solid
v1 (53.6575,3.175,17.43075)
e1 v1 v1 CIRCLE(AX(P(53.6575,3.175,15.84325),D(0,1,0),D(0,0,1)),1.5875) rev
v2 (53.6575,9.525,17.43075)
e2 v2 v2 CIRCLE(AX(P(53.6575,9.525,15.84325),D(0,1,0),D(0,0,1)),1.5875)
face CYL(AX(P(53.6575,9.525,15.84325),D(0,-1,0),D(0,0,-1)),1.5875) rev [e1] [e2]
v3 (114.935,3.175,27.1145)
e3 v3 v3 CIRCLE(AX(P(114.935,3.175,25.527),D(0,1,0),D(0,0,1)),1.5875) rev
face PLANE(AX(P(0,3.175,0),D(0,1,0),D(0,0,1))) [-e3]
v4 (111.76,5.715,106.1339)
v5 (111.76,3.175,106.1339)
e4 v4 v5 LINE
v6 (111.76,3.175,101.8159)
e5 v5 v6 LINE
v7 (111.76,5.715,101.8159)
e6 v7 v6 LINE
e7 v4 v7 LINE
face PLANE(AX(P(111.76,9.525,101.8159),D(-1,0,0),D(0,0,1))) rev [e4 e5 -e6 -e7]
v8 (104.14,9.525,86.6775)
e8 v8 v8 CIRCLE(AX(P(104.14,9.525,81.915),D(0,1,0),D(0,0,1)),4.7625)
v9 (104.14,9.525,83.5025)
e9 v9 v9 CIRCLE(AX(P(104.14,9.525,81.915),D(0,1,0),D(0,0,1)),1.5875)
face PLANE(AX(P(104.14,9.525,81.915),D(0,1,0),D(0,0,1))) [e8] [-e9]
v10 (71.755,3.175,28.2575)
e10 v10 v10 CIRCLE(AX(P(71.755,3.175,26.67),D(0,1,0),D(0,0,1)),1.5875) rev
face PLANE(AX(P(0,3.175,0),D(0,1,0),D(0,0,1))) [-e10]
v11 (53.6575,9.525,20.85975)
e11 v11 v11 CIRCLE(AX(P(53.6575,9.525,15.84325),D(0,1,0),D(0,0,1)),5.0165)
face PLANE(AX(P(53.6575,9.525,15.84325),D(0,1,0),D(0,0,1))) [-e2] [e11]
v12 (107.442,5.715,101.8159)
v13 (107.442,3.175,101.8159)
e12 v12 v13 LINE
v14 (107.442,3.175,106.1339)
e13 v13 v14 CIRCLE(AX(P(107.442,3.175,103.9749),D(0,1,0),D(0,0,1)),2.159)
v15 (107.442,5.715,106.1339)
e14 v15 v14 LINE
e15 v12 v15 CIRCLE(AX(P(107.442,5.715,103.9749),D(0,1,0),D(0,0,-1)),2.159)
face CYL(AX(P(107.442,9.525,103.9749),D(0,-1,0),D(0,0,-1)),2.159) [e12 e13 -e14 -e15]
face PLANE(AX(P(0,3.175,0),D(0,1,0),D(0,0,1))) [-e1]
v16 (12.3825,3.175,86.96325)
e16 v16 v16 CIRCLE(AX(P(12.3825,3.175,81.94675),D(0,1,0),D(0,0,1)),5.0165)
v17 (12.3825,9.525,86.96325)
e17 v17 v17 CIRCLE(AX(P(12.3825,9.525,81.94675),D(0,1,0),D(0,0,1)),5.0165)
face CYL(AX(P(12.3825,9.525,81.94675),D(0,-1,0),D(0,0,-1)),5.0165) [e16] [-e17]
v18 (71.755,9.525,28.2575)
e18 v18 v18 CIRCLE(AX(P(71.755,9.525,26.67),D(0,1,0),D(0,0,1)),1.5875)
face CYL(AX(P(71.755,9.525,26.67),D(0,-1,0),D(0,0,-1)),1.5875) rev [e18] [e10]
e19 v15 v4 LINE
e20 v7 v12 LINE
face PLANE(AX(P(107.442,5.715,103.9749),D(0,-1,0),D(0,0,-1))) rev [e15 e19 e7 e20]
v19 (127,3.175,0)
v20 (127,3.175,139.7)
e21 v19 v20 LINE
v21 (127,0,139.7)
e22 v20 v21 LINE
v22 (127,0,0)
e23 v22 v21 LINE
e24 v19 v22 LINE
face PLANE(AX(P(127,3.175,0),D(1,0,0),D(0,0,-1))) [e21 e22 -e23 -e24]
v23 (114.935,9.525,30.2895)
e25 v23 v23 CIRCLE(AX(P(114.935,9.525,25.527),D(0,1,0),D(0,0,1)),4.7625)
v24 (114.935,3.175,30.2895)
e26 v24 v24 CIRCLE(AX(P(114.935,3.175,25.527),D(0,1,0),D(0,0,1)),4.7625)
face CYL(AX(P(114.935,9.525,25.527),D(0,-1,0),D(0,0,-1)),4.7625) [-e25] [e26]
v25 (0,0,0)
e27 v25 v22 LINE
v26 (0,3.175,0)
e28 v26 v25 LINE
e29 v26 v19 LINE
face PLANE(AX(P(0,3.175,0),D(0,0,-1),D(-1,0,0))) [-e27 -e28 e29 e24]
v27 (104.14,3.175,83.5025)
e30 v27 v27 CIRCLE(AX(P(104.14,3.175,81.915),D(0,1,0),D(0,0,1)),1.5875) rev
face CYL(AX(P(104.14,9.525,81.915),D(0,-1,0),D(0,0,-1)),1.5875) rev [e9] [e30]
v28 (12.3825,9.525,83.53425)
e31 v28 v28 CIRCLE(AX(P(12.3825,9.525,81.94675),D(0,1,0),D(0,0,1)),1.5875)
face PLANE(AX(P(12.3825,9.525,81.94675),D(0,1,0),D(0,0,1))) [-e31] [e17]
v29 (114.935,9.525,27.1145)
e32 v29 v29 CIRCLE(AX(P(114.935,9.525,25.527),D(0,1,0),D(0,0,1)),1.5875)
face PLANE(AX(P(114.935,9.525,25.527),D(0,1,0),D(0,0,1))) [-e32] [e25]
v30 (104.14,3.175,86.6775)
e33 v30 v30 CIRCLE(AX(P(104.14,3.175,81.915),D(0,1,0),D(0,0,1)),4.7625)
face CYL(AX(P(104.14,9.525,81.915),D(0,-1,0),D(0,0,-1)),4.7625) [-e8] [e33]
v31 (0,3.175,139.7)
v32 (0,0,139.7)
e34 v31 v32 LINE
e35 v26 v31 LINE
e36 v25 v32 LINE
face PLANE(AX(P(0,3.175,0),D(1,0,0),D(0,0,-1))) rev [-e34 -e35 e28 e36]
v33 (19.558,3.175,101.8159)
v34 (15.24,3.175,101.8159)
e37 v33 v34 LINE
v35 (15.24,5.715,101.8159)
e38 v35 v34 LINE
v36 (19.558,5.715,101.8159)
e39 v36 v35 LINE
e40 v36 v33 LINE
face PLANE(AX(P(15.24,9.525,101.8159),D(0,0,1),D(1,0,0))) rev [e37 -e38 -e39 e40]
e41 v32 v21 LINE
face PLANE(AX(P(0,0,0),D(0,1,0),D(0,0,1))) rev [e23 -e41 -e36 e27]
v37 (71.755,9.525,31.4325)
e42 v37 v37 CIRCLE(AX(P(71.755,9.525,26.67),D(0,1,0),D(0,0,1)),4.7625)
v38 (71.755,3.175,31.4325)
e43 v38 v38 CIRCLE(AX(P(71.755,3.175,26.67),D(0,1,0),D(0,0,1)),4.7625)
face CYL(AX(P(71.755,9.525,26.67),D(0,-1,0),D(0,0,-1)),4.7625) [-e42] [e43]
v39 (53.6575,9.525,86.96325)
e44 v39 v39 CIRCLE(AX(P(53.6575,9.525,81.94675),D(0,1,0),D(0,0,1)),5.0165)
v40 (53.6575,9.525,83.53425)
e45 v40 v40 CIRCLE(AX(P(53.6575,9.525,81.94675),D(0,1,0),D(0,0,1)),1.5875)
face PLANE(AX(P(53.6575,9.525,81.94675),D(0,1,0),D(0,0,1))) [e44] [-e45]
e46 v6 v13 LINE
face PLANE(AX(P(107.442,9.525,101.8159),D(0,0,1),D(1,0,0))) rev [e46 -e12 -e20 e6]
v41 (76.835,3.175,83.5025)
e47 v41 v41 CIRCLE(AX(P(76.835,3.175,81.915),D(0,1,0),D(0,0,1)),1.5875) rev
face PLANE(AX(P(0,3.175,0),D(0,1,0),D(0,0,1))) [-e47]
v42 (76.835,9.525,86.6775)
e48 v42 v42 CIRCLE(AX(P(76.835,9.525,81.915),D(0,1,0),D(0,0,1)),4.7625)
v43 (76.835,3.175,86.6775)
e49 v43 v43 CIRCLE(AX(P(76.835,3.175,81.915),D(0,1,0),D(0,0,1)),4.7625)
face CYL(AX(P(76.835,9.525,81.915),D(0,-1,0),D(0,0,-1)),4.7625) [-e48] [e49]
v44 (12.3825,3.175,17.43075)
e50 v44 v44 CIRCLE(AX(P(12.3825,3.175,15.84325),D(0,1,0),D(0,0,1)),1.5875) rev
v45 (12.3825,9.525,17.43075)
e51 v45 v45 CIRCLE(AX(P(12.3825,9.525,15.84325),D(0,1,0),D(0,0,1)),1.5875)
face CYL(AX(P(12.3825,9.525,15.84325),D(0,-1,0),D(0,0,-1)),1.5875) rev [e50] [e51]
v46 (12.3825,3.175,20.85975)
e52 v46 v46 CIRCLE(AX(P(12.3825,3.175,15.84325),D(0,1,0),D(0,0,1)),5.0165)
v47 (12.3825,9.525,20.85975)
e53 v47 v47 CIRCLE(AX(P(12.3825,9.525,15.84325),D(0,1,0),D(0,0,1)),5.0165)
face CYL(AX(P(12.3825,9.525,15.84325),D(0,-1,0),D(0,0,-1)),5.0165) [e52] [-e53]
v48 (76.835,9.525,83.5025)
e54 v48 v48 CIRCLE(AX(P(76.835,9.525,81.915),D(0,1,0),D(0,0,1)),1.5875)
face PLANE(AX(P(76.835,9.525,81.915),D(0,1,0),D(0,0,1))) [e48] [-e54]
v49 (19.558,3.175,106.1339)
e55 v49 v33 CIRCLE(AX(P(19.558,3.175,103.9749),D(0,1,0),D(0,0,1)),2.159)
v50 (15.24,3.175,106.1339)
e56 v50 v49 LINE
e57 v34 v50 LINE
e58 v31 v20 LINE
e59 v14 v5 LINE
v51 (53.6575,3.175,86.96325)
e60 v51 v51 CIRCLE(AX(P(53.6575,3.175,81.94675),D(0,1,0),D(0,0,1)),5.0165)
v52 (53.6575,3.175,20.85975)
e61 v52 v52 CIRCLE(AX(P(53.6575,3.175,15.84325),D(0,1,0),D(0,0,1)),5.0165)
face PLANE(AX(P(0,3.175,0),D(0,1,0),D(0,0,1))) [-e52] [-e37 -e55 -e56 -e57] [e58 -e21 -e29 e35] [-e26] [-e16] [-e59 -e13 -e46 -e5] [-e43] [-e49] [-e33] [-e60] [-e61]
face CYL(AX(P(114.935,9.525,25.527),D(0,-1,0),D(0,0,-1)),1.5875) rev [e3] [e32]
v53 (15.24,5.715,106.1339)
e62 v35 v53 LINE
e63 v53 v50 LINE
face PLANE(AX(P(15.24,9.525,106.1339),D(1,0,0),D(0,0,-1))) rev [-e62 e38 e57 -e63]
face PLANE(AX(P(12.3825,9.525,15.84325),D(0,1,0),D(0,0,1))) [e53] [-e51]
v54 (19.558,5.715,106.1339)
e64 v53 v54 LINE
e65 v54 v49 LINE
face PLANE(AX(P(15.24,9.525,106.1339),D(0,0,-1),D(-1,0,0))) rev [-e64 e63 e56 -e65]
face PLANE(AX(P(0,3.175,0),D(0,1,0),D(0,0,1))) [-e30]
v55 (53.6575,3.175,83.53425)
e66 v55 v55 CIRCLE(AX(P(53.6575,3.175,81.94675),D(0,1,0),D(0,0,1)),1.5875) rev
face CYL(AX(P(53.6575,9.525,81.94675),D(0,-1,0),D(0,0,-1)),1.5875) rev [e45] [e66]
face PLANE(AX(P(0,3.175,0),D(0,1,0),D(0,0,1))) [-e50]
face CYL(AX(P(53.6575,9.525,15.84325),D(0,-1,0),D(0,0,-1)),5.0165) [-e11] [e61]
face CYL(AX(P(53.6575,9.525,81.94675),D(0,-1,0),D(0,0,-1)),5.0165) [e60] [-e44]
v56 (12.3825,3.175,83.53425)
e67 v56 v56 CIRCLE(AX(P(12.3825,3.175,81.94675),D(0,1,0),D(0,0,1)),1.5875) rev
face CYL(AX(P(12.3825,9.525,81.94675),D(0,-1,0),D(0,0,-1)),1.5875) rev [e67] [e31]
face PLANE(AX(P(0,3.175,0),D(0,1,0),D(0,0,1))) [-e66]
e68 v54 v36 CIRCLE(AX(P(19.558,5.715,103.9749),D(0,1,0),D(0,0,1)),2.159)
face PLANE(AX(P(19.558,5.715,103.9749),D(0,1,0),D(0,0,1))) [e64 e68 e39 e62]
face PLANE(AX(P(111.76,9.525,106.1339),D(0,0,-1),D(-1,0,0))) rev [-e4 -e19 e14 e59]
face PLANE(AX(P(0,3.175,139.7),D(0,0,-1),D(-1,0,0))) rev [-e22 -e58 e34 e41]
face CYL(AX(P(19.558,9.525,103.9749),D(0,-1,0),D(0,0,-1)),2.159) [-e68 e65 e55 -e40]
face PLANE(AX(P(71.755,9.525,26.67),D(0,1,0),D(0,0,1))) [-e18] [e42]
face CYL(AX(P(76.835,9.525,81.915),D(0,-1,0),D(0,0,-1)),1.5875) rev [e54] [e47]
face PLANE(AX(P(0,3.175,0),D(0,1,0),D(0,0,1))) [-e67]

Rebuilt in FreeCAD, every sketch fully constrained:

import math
import FreeCAD as App
import Part
import Sketcher
Q = App.Units.Quantity

doc = App.newDocument("Part")
body = doc.addObject("PartDesign::Body", "Body")

sketch1 = body.newObject("Sketcher::SketchObject", "Sketch")
sketch1.AttachmentSupport = (doc.getObject("XZ_Plane"), [""])
sketch1.MapMode = "FlatFace"
sketch1.addGeometry([
    Part.LineSegment(App.Vector(0, 0, 0), App.Vector(0, 140, 0)),
    Part.LineSegment(App.Vector(0, 140, 0), App.Vector(127, 140, 0)),
    Part.LineSegment(App.Vector(127, 140, 0), App.Vector(127, 0, 0)),
    Part.LineSegment(App.Vector(127, 0, 0), App.Vector(0, 0, 0)),
], False)
sketch1.addConstraint([
    Sketcher.Constraint("Coincident", 0, 2, 1, 1),
    Sketcher.Constraint("Coincident", 1, 2, 2, 1),
    Sketcher.Constraint("Coincident", 2, 2, 3, 1),
    Sketcher.Constraint("Coincident", 3, 2, 0, 1),
    Sketcher.Constraint("Vertical", 0),
    Sketcher.Constraint("Horizontal", 1),
    Sketcher.Constraint("Vertical", 2),
    Sketcher.Constraint("Horizontal", 3),
    Sketcher.Constraint("Coincident", 3, 2, -1, 1),
    Sketcher.Constraint("DistanceX", 1, 1, 1, 2, Q("5 in")),
    Sketcher.Constraint("DistanceY", 0, 1, 0, 2, Q("5.5 in")),
])
pad1 = body.newObject("PartDesign::Pad", "Pad")
pad1.Profile = sketch1
pad1.Length = Q("0.125 in")
pad1.Reversed = True

sketch2 = body.newObject("Sketcher::SketchObject", "Sketch001")
sketch2.AttachmentSupport = (doc.getObject("XZ_Plane"), [""])
sketch2.MapMode = "FlatFace"
sketch2.AttachmentOffset = App.Placement(App.Vector(0, 0, -0.125 * 25.4), App.Rotation())
sketch2.addGeometry([
    Part.Circle(App.Vector(12.4, 15.8, 0), App.Vector(0, 0, 1), 5),
    Part.Circle(App.Vector(12.4, 15.8, 0), App.Vector(0, 0, 1), 1.6),
    Part.Circle(App.Vector(53.7, 15.8, 0), App.Vector(0, 0, 1), 5),
    Part.Circle(App.Vector(53.7, 15.8, 0), App.Vector(0, 0, 1), 1.6),
    Part.Circle(App.Vector(71.8, 26.7, 0), App.Vector(0, 0, 1), 4.8),
    Part.Circle(App.Vector(71.8, 26.7, 0), App.Vector(0, 0, 1), 1.6),
    Part.Circle(App.Vector(114.9, 25.5, 0), App.Vector(0, 0, 1), 4.8),
    Part.Circle(App.Vector(114.9, 25.5, 0), App.Vector(0, 0, 1), 1.6),
    Part.Circle(App.Vector(104.1, 81.9, 0), App.Vector(0, 0, 1), 4.8),
    Part.Circle(App.Vector(104.1, 81.9, 0), App.Vector(0, 0, 1), 1.6),
    Part.Circle(App.Vector(76.8, 81.9, 0), App.Vector(0, 0, 1), 4.8),
    Part.Circle(App.Vector(76.8, 81.9, 0), App.Vector(0, 0, 1), 1.6),
    Part.Circle(App.Vector(53.7, 81.9, 0), App.Vector(0, 0, 1), 5),
    Part.Circle(App.Vector(53.7, 81.9, 0), App.Vector(0, 0, 1), 1.6),
    Part.Circle(App.Vector(12.4, 81.9, 0), App.Vector(0, 0, 1), 5),
    Part.Circle(App.Vector(12.4, 81.9, 0), App.Vector(0, 0, 1), 1.6),
    Part.LineSegment(App.Vector(15.2, 101.8, 0), App.Vector(15.2, 106.1, 0)),
    Part.LineSegment(App.Vector(15.2, 106.1, 0), App.Vector(19.6, 106.1, 0)),
    Part.ArcOfCircle(Part.Circle(App.Vector(19.6, 104, 0), App.Vector(0, 0, 1), 2.2), math.radians(-90), math.radians(90)),
    Part.LineSegment(App.Vector(19.6, 101.8, 0), App.Vector(15.2, 101.8, 0)),
    Part.LineSegment(App.Vector(111.8, 101.8, 0), App.Vector(107.4, 101.8, 0)),
    Part.ArcOfCircle(Part.Circle(App.Vector(107.4, 104, 0), App.Vector(0, 0, 1), 2.2), math.radians(90), math.radians(270)),
    Part.LineSegment(App.Vector(107.4, 106.1, 0), App.Vector(111.8, 106.1, 0)),
    Part.LineSegment(App.Vector(111.8, 106.1, 0), App.Vector(111.8, 101.8, 0)),
], False)
sketch2.addConstraint([
    Sketcher.Constraint("Coincident", 16, 2, 17, 1),
    Sketcher.Constraint("Tangent", 17, 2, 18, 2),
    Sketcher.Constraint("Tangent", 18, 1, 19, 1),
    Sketcher.Constraint("Coincident", 19, 2, 16, 1),
    Sketcher.Constraint("Tangent", 20, 2, 21, 2),
    Sketcher.Constraint("Tangent", 21, 1, 22, 1),
    Sketcher.Constraint("Coincident", 22, 2, 23, 1),
    Sketcher.Constraint("Coincident", 23, 2, 20, 1),
    Sketcher.Constraint("Vertical", 16),
    Sketcher.Constraint("Horizontal", 17),
    Sketcher.Constraint("Horizontal", 19),
    Sketcher.Constraint("Horizontal", 20),
    Sketcher.Constraint("Horizontal", 22),
    Sketcher.Constraint("Vertical", 23),
    Sketcher.Constraint("Coincident", 1, 3, 0, 3),
    Sketcher.Constraint("Coincident", 3, 3, 2, 3),
    Sketcher.Constraint("Coincident", 5, 3, 4, 3),
    Sketcher.Constraint("Coincident", 7, 3, 6, 3),
    Sketcher.Constraint("Coincident", 9, 3, 8, 3),
    Sketcher.Constraint("Coincident", 11, 3, 10, 3),
    Sketcher.Constraint("Coincident", 13, 3, 12, 3),
    Sketcher.Constraint("Coincident", 15, 3, 14, 3),
    Sketcher.Constraint("Equal", 0, 2),
    Sketcher.Constraint("Equal", 1, 3),
    Sketcher.Constraint("Equal", 3, 5),
    Sketcher.Constraint("Equal", 4, 6),
    Sketcher.Constraint("Equal", 5, 7),
    Sketcher.Constraint("Equal", 6, 8),
    Sketcher.Constraint("Equal", 7, 9),
    Sketcher.Constraint("Equal", 8, 10),
    Sketcher.Constraint("Equal", 9, 11),
    Sketcher.Constraint("Equal", 2, 12),
    Sketcher.Constraint("Equal", 11, 13),
    Sketcher.Constraint("Equal", 12, 14),
    Sketcher.Constraint("Equal", 13, 15),
    Sketcher.Constraint("Equal", 18, 21),
    Sketcher.Constraint("Horizontal", 1, 3, 2, 3),
    Sketcher.Constraint("Horizontal", 9, 3, 10, 3),
    Sketcher.Constraint("Horizontal", 13, 3, 14, 3),
    Sketcher.Constraint("Horizontal", 18, 3, 21, 3),
    Sketcher.Constraint("Vertical", 3, 3, 12, 3),
    Sketcher.Constraint("Vertical", 1, 3, 14, 3),
    Sketcher.Constraint("Equal", 19, 20),
    Sketcher.Constraint("Equal", 22, 16),
    Sketcher.Constraint("Diameter", 0, Q("0.395 in")),
    Sketcher.Constraint("Diameter", 1, Q("0.125 in")),
    Sketcher.Constraint("Diameter", 4, Q("0.375 in")),
    Sketcher.Constraint("Radius", 18, Q("0.085 in")),
    Sketcher.Constraint("DistanceX", -1, 1, 8, 3, Q("4.1 in")),
    Sketcher.Constraint("DistanceX", -1, 1, 16, 2, Q("0.6 in")),
    Sketcher.Constraint("DistanceX", -1, 1, 22, 2, Q("4.4 in")),
    Sketcher.Constraint("DistanceX", 4, 3, 6, 3, Q("1.7 in")),
    Sketcher.Constraint("DistanceX", 4, 3, 10, 3, Q("0.2 in")),
    Sketcher.Constraint("DistanceY", -1, 1, 4, 3, Q("1.05 in")),
    Sketcher.Constraint("DistanceY", 6, 3, 8, 3, Q("2.22 in")),
    Sketcher.Constraint("DistanceX", -1, 1, 4, 3, Q("2.825 in")),
    Sketcher.Constraint("DistanceY", -1, 1, 6, 3, Q("1.005 in")),
    Sketcher.Constraint("DistanceX", 0, 3, 2, 3, Q("1.625 in")),
    Sketcher.Constraint("DistanceX", -1, 1, 0, 3, Q("0.4875 in")),
    Sketcher.Constraint("DistanceY", -1, 1, 18, 3, Q("4.0935 in")),
    Sketcher.Constraint("DistanceY", 0, 3, 14, 3, Q("2.6025 in")),
    Sketcher.Constraint("DistanceY", -1, 1, 0, 3, Q("15.84325 mm")),
])
pad2 = body.newObject("PartDesign::Pad", "Pad001")
pad2.Profile = sketch2
pad2.Length = Q("0.25 in")
pad2.Reversed = True

sketch3 = body.newObject("Sketcher::SketchObject", "Sketch002")
sketch3.AttachmentSupport = (doc.getObject("XZ_Plane"), [""])
sketch3.MapMode = "FlatFace"
sketch3.AttachmentOffset = App.Placement(App.Vector(0, 0, -0.225 * 25.4), App.Rotation())
sketch3.addGeometry([
    Part.LineSegment(App.Vector(19.6, 101.8, 0), App.Vector(15.2, 101.8, 0)),
    Part.LineSegment(App.Vector(15.2, 101.8, 0), App.Vector(15.2, 106.1, 0)),
    Part.LineSegment(App.Vector(15.2, 106.1, 0), App.Vector(19.6, 106.1, 0)),
    Part.ArcOfCircle(Part.Circle(App.Vector(19.6, 104, 0), App.Vector(0, 0, 1), 2.2), math.radians(-90), math.radians(90)),
    Part.LineSegment(App.Vector(107.4, 106.1, 0), App.Vector(111.8, 106.1, 0)),
    Part.LineSegment(App.Vector(111.8, 106.1, 0), App.Vector(111.8, 101.8, 0)),
    Part.LineSegment(App.Vector(111.8, 101.8, 0), App.Vector(107.4, 101.8, 0)),
    Part.ArcOfCircle(Part.Circle(App.Vector(107.4, 104, 0), App.Vector(0, 0, 1), 2.2), math.radians(90), math.radians(270)),
], False)
sketch3.addConstraint([
    Sketcher.Constraint("Coincident", 0, 2, 1, 1),
    Sketcher.Constraint("Coincident", 1, 2, 2, 1),
    Sketcher.Constraint("Tangent", 2, 2, 3, 2),
    Sketcher.Constraint("Tangent", 3, 1, 0, 1),
    Sketcher.Constraint("Coincident", 4, 2, 5, 1),
    Sketcher.Constraint("Coincident", 5, 2, 6, 1),
    Sketcher.Constraint("Tangent", 6, 2, 7, 2),
    Sketcher.Constraint("Tangent", 7, 1, 4, 1),
    Sketcher.Constraint("Horizontal", 0),
    Sketcher.Constraint("Vertical", 1),
    Sketcher.Constraint("Horizontal", 2),
    Sketcher.Constraint("Horizontal", 4),
    Sketcher.Constraint("Vertical", 5),
    Sketcher.Constraint("Horizontal", 6),
    Sketcher.Constraint("Equal", 3, 7),
    Sketcher.Constraint("Horizontal", 3, 3, 7, 3),
    Sketcher.Constraint("Equal", 2, 4),
    Sketcher.Constraint("Equal", 6, 1),
    Sketcher.Constraint("Radius", 3, Q("0.085 in")),
    Sketcher.Constraint("DistanceX", -1, 1, 0, 2, Q("0.6 in")),
    Sketcher.Constraint("DistanceX", -1, 1, 4, 2, Q("4.4 in")),
    Sketcher.Constraint("DistanceY", -1, 1, 3, 3, Q("4.0935 in")),
])
pocket1 = body.newObject("PartDesign::Pocket", "Pocket")
pocket1.Profile = sketch3
pocket1.Length = Q("0.15 in")

doc.recompute()
